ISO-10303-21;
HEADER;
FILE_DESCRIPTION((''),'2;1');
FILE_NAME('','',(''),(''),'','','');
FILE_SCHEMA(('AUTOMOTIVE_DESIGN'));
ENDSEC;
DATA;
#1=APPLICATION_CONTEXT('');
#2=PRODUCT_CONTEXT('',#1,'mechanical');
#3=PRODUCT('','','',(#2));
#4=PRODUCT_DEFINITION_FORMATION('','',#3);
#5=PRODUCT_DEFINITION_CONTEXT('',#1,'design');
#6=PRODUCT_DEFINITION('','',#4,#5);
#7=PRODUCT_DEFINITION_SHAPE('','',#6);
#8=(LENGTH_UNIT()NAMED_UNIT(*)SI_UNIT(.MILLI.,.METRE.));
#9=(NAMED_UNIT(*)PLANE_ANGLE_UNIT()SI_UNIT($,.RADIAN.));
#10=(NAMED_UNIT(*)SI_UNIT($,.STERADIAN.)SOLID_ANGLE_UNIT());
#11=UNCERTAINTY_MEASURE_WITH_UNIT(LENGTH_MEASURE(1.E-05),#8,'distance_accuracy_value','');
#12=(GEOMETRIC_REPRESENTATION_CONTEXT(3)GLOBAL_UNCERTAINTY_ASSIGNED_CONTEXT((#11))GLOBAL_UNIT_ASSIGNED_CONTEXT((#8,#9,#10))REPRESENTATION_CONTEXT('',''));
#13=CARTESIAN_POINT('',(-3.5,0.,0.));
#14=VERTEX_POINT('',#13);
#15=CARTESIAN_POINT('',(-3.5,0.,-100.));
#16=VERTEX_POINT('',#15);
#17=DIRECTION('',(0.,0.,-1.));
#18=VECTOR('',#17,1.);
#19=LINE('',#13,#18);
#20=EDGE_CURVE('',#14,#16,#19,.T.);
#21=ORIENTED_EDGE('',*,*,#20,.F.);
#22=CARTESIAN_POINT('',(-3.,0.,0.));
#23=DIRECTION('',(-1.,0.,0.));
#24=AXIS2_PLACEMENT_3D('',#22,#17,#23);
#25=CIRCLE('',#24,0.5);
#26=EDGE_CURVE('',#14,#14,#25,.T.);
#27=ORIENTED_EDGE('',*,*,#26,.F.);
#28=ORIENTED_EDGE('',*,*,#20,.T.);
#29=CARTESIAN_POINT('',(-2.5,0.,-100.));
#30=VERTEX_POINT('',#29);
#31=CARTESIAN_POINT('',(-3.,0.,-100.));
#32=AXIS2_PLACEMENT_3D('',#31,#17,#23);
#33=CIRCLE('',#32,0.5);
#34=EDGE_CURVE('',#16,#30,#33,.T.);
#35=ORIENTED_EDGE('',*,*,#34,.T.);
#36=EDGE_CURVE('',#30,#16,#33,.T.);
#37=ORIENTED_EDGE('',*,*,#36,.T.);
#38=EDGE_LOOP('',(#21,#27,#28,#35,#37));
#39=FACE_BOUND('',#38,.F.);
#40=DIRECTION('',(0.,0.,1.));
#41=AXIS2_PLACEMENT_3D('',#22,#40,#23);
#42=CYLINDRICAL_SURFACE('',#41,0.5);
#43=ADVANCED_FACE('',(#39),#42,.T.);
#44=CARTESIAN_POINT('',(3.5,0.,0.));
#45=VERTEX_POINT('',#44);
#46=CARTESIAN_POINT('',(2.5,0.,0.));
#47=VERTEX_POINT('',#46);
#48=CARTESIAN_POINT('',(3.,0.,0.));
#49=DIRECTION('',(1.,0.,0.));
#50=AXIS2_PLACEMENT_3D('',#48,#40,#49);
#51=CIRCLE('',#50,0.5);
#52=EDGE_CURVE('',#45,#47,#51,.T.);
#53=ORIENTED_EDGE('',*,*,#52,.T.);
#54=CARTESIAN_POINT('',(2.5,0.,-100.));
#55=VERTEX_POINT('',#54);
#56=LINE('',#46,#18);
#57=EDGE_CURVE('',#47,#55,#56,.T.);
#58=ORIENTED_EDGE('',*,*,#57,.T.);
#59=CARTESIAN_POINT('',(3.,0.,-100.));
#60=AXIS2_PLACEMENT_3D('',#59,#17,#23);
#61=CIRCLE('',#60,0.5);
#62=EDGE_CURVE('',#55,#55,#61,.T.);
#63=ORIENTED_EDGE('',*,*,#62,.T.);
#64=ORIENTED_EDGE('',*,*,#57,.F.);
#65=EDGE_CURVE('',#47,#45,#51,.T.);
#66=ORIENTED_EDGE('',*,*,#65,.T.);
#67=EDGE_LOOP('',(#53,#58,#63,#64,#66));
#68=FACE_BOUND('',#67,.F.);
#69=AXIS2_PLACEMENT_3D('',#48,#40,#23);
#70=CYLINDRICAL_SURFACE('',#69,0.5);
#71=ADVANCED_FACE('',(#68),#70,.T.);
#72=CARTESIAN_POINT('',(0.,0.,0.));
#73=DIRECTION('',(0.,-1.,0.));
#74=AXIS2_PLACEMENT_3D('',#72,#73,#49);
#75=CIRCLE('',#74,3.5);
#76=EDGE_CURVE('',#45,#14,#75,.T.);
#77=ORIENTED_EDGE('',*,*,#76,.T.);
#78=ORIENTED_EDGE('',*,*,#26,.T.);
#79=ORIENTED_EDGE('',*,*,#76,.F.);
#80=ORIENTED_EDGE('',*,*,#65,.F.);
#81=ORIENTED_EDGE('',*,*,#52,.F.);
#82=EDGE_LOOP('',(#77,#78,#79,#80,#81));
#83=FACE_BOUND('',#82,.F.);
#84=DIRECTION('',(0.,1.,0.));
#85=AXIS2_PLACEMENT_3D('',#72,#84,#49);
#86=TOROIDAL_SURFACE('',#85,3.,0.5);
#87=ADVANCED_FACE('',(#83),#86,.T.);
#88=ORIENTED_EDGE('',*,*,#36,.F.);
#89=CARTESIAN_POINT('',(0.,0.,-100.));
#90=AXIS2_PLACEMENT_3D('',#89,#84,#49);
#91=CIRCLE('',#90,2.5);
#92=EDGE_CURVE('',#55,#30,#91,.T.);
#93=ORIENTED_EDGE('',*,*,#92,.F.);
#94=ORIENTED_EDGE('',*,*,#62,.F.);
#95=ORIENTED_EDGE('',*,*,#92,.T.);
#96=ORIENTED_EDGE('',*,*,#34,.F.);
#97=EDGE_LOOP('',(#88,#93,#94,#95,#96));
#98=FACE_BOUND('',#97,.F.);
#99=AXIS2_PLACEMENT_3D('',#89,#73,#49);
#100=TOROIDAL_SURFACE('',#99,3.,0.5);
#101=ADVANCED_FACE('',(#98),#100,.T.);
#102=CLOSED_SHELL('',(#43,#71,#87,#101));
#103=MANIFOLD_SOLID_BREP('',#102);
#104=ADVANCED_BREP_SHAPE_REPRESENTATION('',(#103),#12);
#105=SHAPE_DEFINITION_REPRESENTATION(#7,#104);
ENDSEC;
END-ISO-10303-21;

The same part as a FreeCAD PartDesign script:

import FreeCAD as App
import Part
import Sketcher
from FreeCAD import Vector

doc = App.newDocument("Part")
body = doc.addObject("PartDesign::Body", "Body")

# Sketch on XY plane
sketch1 = body.newObject("Sketcher::SketchObject", "Sketch")
sketch1.AttachmentSupport = (doc.getObject("XY_Plane"), [""])
sketch1.MapMode = "FlatFace"
sketch1.addGeometry(Part.Circle(Vector(3, 0, 0), Vector(0, 0, 1), 0.5), False)
sketch1.addConstraint([
    Sketcher.Constraint("PointOnObject", 0, 3, -1),
    Sketcher.Constraint("Diameter", 0, 1.0),
    Sketcher.Constraint("DistanceX", -1, 1, 0, 3, 3.0),
])
revolution = body.newObject("PartDesign::Revolution", "Revolution")
revolution.Profile = sketch1
revolution.ReferenceAxis = (sketch1, ["V_Axis"])
revolution.Angle = 180
revolution.Reversed = True

# Sketch on XY plane
sketch2 = body.newObject("Sketcher::SketchObject", "Sketch001")
sketch2.AttachmentSupport = (doc.getObject("XY_Plane"), [""])
sketch2.MapMode = "FlatFace"
sketch2.addGeometry([
    Part.Circle(Vector(3, 0, 0), Vector(0, 0, 1), 0.5),
    Part.Circle(Vector(-3, 0, 0), Vector(0, 0, 1), 0.5),
], False)
sketch2.addConstraint([
    Sketcher.Constraint("Equal", 0, 1),
    Sketcher.Constraint("Symmetric", 0, 3, 1, 3, -1, 1),
    Sketcher.Constraint("PointOnObject", 0, 3, -1),
    Sketcher.Constraint("Diameter", 0, 1.0),
    Sketcher.Constraint("DistanceX", -1, 1, 0, 3, 3.0),
])
pad1 = body.newObject("PartDesign::Pad", "Pad")
pad1.Profile = sketch2
pad1.Length = 100
pad1.Reversed = True

# Sketch on XY plane
sketch3 = body.newObject("Sketcher::SketchObject", "Sketch002")
sketch3.AttachmentSupport = (doc.getObject("XY_Plane"), [""])
sketch3.MapMode = "FlatFace"
sketch3.AttachmentOffset = App.Placement(Vector(0, 0, -100), App.Rotation())
sketch3.addGeometry(Part.Circle(Vector(3, 0, 0), Vector(0, 0, 1), 0.5), False)
sketch3.addConstraint([
    Sketcher.Constraint("PointOnObject", 0, 3, -1),
    Sketcher.Constraint("Diameter", 0, 1.0),
    Sketcher.Constraint("DistanceX", -1, 1, 0, 3, 3.0),
])
revolution2 = body.newObject("PartDesign::Revolution", "Revolution001")
revolution2.Profile = sketch3
revolution2.ReferenceAxis = (sketch3, ["V_Axis"])
revolution2.Angle = 180

doc.recompute()
